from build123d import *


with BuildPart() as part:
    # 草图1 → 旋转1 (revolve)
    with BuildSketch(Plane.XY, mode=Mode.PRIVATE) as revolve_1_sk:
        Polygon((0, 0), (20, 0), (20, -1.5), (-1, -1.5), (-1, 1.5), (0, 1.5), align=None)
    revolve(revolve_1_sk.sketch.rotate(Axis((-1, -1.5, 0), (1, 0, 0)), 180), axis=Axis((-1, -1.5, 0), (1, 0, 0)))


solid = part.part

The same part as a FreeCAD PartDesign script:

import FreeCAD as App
import Part
import Sketcher

V = App.Vector
Q = App.Units.Quantity


def add_polygon(sketch, points):
    """Adds a closed chain of lines whose ends are joined by coincident constraints."""
    first, n = sketch.GeometryCount, len(points)
    for a, b in zip(points, points[1:] + points[:1]):
        sketch.addGeometry(Part.LineSegment(App.Vector(*a, 0), App.Vector(*b, 0)), False)
    for i in range(n):
        sketch.addConstraint(Sketcher.Constraint("Coincident", first + i, 2, first + (i + 1) % n, 1))

doc = App.newDocument("Part")
body = doc.addObject("PartDesign::Body", "Body")

sketch1 = body.newObject("Sketcher::SketchObject", "Sketch")
sketch1.AttachmentSupport = (doc.getObject("XY_Plane"), [""])
sketch1.MapMode = "FlatFace"
add_polygon(sketch1, [(20, 0), (0, 0), (0, 1.5), (-1, 1.5), (-1, -1.5), (20, -1.5)])
sketch1.addGeometry(Part.LineSegment(V(-1, -1.5, 0), V(20, -1.5, 0)), True)
sketch1.addConstraint(Sketcher.Constraint("Horizontal", 0))
sketch1.addConstraint(Sketcher.Constraint("Vertical", 1))
sketch1.addConstraint(Sketcher.Constraint("Horizontal", 2))
sketch1.addConstraint(Sketcher.Constraint("Vertical", 3))
sketch1.addConstraint(Sketcher.Constraint("Horizontal", 4))
sketch1.addConstraint(Sketcher.Constraint("Vertical", 5))
sketch1.addConstraint(Sketcher.Constraint("Horizontal", 6))
sketch1.addConstraint(Sketcher.Constraint("Coincident", 0, 2, -1, 1))
sketch1.addConstraint(Sketcher.Constraint("Coincident", 6, 1, 3, 2))
sketch1.addConstraint(Sketcher.Constraint("Vertical", 5, 2, 6, 2))
sketch1.addConstraint(Sketcher.Constraint("Equal", 1, 5))
sketch1.addConstraint(Sketcher.Constraint("DistanceX", 0, 2, 0, 1, Q("20 mm")))
sketch1.addConstraint(Sketcher.Constraint("DistanceX", 2, 2, 2, 1, Q("1 mm")))
sketch1.addConstraint(Sketcher.Constraint("DistanceY", 3, 2, 3, 1, Q("3 mm")))
revolution = body.newObject("PartDesign::Revolution", "Revolution")
revolution.Profile = sketch1
revolution.ReferenceAxis = (sketch1, ["Axis0"])
revolution.Angle = 360

doc.recompute()
